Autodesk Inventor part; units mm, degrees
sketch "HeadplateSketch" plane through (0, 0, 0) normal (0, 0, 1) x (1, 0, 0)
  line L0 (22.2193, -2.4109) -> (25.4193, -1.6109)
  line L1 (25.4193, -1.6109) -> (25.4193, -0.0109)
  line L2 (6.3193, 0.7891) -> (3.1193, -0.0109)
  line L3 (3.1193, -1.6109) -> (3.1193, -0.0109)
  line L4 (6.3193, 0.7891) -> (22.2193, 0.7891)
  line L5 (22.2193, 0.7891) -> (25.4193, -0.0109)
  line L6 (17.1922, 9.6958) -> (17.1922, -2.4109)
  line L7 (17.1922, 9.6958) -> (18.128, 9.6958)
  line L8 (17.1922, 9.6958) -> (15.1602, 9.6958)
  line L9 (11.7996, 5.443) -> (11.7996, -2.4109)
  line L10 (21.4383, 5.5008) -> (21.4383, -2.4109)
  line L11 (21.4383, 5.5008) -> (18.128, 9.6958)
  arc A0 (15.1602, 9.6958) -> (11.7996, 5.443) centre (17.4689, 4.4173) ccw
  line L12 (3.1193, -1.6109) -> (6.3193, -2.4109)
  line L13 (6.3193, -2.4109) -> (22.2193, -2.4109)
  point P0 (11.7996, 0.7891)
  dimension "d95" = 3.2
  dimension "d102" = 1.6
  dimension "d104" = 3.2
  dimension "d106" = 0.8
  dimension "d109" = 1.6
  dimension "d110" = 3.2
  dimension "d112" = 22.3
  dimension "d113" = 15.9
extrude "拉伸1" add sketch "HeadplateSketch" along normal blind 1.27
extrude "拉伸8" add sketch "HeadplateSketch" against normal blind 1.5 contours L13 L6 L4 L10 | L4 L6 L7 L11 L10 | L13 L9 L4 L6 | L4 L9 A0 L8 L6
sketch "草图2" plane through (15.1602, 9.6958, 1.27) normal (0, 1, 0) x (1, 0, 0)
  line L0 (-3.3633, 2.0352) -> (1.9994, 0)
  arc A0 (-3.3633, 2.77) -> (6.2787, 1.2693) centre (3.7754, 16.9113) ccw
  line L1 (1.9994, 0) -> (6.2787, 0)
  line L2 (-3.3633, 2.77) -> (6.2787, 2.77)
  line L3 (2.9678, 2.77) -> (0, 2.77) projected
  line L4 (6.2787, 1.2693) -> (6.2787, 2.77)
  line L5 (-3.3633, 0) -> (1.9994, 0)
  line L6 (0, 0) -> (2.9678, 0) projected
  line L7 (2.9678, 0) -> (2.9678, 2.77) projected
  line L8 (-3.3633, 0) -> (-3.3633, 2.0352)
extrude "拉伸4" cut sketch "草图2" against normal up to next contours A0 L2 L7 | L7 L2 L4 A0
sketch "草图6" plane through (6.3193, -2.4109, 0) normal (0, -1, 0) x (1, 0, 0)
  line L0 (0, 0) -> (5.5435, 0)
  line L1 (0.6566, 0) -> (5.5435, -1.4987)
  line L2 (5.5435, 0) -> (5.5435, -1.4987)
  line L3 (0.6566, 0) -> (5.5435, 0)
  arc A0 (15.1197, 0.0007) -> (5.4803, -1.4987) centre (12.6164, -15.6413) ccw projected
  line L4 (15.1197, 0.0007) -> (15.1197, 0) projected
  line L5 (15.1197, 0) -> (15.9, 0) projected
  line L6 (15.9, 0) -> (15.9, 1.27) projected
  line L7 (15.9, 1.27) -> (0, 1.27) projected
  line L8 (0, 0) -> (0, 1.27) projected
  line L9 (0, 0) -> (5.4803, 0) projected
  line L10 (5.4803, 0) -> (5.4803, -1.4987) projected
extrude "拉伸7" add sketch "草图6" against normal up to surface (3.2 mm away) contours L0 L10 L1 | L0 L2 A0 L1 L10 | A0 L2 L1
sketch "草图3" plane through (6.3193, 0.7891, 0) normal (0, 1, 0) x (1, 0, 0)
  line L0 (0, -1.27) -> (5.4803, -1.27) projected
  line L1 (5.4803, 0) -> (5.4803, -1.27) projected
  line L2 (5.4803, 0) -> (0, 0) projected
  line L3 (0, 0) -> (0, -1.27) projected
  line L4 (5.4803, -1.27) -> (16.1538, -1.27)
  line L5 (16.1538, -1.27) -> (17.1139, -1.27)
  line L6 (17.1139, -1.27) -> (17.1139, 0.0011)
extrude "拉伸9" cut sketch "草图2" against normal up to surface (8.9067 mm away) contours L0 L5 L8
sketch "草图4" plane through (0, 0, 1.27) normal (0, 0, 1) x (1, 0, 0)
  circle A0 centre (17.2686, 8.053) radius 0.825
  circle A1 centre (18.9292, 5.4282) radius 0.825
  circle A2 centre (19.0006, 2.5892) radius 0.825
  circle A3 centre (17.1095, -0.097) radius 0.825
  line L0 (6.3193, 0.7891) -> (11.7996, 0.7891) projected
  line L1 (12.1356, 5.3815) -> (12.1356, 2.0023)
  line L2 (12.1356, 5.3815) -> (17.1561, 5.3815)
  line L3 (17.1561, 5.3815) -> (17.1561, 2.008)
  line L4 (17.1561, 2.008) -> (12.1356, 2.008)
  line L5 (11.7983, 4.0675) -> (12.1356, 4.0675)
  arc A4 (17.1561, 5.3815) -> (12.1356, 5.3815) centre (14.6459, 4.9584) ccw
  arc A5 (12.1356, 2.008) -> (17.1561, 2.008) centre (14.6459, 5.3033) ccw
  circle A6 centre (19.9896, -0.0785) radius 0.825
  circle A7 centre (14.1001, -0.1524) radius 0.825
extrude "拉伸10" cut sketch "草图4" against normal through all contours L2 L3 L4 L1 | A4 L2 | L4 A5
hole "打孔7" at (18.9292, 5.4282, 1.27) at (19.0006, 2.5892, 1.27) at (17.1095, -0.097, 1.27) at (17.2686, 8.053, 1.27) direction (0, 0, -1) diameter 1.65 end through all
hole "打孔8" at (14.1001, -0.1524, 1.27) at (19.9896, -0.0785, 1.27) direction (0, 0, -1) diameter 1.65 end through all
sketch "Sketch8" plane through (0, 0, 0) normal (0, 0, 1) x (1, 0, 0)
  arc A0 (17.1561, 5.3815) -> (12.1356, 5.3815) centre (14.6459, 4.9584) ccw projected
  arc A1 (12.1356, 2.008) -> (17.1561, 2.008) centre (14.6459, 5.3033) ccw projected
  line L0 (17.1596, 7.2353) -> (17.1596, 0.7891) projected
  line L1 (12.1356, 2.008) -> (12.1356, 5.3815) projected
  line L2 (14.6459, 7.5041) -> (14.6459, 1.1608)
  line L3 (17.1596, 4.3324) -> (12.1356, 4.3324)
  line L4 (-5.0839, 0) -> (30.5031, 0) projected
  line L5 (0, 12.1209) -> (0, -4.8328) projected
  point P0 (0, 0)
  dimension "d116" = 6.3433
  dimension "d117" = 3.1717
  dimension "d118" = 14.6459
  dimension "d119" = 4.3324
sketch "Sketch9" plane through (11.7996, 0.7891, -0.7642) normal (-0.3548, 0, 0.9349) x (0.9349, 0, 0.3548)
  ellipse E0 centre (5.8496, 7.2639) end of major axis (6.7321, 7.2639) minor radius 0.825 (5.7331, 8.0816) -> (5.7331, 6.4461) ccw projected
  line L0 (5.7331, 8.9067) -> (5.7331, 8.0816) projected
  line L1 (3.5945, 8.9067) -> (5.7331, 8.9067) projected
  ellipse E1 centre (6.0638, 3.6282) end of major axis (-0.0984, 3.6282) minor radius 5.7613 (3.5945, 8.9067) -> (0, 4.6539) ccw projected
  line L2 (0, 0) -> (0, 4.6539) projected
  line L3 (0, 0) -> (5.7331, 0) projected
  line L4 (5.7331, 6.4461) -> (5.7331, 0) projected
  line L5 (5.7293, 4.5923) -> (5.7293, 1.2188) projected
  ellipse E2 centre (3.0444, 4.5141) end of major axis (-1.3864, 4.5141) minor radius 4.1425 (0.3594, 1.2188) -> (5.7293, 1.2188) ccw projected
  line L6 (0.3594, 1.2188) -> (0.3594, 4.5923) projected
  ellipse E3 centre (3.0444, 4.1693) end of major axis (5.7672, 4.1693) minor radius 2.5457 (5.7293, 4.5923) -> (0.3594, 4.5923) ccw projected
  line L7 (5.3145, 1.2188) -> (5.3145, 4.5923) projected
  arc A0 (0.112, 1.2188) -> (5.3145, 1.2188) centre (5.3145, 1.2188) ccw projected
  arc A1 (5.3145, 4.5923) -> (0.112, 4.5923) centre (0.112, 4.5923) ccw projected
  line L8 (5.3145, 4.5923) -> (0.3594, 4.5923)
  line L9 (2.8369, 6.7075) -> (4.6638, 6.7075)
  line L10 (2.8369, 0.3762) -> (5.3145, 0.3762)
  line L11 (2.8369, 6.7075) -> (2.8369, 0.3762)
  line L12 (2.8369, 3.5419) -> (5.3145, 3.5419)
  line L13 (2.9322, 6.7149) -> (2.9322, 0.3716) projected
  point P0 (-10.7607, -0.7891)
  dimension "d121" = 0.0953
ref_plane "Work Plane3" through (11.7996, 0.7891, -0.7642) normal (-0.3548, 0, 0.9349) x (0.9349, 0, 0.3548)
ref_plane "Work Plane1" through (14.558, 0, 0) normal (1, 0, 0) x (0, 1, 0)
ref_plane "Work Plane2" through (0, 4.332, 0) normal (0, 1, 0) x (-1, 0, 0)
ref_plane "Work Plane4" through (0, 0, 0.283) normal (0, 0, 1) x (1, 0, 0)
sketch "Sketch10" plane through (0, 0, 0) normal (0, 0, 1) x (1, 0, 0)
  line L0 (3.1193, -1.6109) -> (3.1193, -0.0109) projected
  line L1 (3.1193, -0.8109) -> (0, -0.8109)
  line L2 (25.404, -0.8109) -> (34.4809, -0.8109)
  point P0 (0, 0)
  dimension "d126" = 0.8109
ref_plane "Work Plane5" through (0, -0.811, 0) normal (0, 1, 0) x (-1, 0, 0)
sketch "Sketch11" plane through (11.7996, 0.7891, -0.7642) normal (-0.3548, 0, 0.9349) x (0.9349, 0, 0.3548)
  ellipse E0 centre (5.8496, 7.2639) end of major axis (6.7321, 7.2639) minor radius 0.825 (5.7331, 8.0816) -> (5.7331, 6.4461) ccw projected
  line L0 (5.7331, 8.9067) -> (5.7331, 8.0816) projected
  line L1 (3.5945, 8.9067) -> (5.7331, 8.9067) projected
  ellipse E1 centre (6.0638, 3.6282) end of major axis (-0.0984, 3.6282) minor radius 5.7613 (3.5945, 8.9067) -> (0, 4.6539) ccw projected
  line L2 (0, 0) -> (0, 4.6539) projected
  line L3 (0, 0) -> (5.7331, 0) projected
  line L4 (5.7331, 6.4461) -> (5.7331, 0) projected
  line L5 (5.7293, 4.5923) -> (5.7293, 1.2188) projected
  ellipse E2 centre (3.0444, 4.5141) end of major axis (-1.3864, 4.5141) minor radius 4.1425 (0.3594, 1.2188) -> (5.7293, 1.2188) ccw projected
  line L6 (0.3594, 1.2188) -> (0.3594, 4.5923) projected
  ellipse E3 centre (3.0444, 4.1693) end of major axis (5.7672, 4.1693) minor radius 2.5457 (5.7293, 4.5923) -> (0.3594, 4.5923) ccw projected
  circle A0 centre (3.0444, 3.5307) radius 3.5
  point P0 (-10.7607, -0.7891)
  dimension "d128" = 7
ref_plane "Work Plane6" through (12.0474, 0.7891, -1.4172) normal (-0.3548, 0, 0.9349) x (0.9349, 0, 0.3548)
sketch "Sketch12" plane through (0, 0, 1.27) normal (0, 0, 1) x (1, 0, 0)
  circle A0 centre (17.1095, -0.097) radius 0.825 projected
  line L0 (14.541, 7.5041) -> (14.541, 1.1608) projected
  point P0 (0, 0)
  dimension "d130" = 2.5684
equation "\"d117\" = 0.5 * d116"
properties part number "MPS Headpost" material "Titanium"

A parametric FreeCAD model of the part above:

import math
import FreeCAD as App
import Part
import Sketcher

V = App.Vector
Q = App.Units.Quantity

doc = App.newDocument("Part")
body = doc.addObject("PartDesign::Body", "Body")

# Sketch on XY plane
sketch1 = doc.addObject("Sketcher::SketchObject", "Sketch")
body.addObject(sketch1)
sketch1.AttachmentSupport = (doc.XY_Plane, [""])
sketch1.MapMode = "FlatFace"
sketch1.addGeometry(Part.LineSegment(V(22.2193, -2.4109, 0), V(25.4193, -1.6109, 0)), False)
sketch1.addGeometry(Part.LineSegment(V(25.4193, -1.6109, 0), V(25.4193, -0.0109, 0)), False)
sketch1.addGeometry(Part.LineSegment(V(25.4193, -0.0109, 0), V(22.2193, 0.7891, 0)), False)
sketch1.addGeometry(Part.LineSegment(V(22.2193, 0.7891, 0), V(21.4383, 0.7891, 0)), False)
sketch1.addGeometry(Part.LineSegment(V(21.4383, 0.7891, 0), V(21.4383, 5.5008, 0)), False)
sketch1.addGeometry(Part.LineSegment(V(21.4383, 5.5008, 0), V(18.128, 9.6958, 0)), False)
sketch1.addGeometry(Part.LineSegment(V(18.128, 9.6958, 0), V(15.1602, 9.6958, 0)), False)
sketch1.addGeometry(Part.ArcOfCircle(Part.Circle(V(17.4689, 4.4173, 0), V(0, 0, 1), 5.761307), math.radians(113.623512), math.radians(169.744876)), False)
sketch1.addGeometry(Part.LineSegment(V(11.7996, 5.443, 0), V(11.7996, 0.7891, 0)), False)
sketch1.addGeometry(Part.LineSegment(V(11.7996, 0.7891, 0), V(6.3193, 0.7891, 0)), False)
sketch1.addGeometry(Part.LineSegment(V(6.3193, 0.7891, 0), V(3.1193, -0.0109, 0)), False)
sketch1.addGeometry(Part.LineSegment(V(3.1193, -0.0109, 0), V(3.1193, -1.6109, 0)), False)
sketch1.addGeometry(Part.LineSegment(V(3.1193, -1.6109, 0), V(6.3193, -2.4109, 0)), False)
sketch1.addGeometry(Part.LineSegment(V(6.3193, -2.4109, 0), V(22.2193, -2.4109, 0)), False)
sketch1.addConstraint(Sketcher.Constraint("Coincident", 0, 2, 1, 1))
sketch1.addConstraint(Sketcher.Constraint("Coincident", 1, 2, 2, 1))
sketch1.addConstraint(Sketcher.Constraint("Coincident", 2, 2, 3, 1))
sketch1.addConstraint(Sketcher.Constraint("Coincident", 3, 2, 4, 1))
sketch1.addConstraint(Sketcher.Constraint("Coincident", 4, 2, 5, 1))
sketch1.addConstraint(Sketcher.Constraint("Coincident", 5, 2, 6, 1))
sketch1.addConstraint(Sketcher.Constraint("Coincident", 6, 2, 7, 1))
sketch1.addConstraint(Sketcher.Constraint("Coincident", 7, 2, 8, 1))
sketch1.addConstraint(Sketcher.Constraint("Coincident", 8, 2, 9, 1))
sketch1.addConstraint(Sketcher.Constraint("Coincident", 9, 2, 10, 1))
sketch1.addConstraint(Sketcher.Constraint("Coincident", 10, 2, 11, 1))
sketch1.addConstraint(Sketcher.Constraint("Coincident", 11, 2, 12, 1))
sketch1.addConstraint(Sketcher.Constraint("Coincident", 12, 2, 13, 1))
sketch1.addConstraint(Sketcher.Constraint("Coincident", 13, 2, 0, 1))
sketch1.addConstraint(Sketcher.Constraint("Vertical", 1))
sketch1.addConstraint(Sketcher.Constraint("Horizontal", 3))
sketch1.addConstraint(Sketcher.Constraint("Vertical", 4))
sketch1.addConstraint(Sketcher.Constraint("Horizontal", 6))
sketch1.addConstraint(Sketcher.Constraint("Vertical", 8))
sketch1.addConstraint(Sketcher.Constraint("Horizontal", 9))
sketch1.addConstraint(Sketcher.Constraint("Vertical", 11))
sketch1.addConstraint(Sketcher.Constraint("Horizontal", 13))
sketch1.addConstraint(Sketcher.Constraint("Parallel", 0, 10))
sketch1.addConstraint(Sketcher.Constraint("Parallel", 2, 12))
sketch1.addConstraint(Sketcher.Constraint("Horizontal", 3, 2, 8, 2))
sketch1.addConstraint(Sketcher.Constraint("Horizontal", 1, 2, 10, 2))
sketch1.addConstraint(Sketcher.Constraint("Horizontal", 0, 2, 11, 2))
sketch1.addConstraint(Sketcher.Constraint("Vertical", 9, 2, 12, 2))
sketch1.addConstraint(Sketcher.Constraint("Vertical", 2, 2, 13, 2))
sketch1.addConstraint(Sketcher.Constraint("DistanceX", 13, 1, 13, 2, Q("15.9 mm")))
sketch1.addConstraint(Sketcher.Constraint("DistanceY", 1, 1, 1, 2, Q("1.6 mm")))
sketch1.addConstraint(Sketcher.Constraint("DistanceX", 2, 2, 1, 2, Q("3.2 mm")))
sketch1.addConstraint(Sketcher.Constraint("DistanceY", 1, 2, 2, 2, Q("0.8 mm")))
sketch1.addConstraint(Sketcher.Constraint("Radius", 7, Q("5.7613 mm")))
sketch1.addConstraint(Sketcher.Constraint("DistanceX", 3, 2, 3, 1, Q("0.781 mm")))
sketch1.addConstraint(Sketcher.Constraint("DistanceY", 8, 2, 8, 1, Q("4.654 mm")))
sketch1.addConstraint(Sketcher.Constraint("DistanceX", 6, 2, 6, 1, Q("2.9678 mm")))
sketch1.addConstraint(Sketcher.Constraint("DistanceX", 9, 2, 9, 1, Q("5.4803 mm")))
sketch1.addConstraint(Sketcher.Constraint("DistanceY", 4, 1, 4, 2, Q("4.7117 mm")))
sketch1.addConstraint(Sketcher.Constraint("DistanceX", -1, 1, 7, 3, Q("17.469 mm")))
sketch1.addConstraint(Sketcher.Constraint("DistanceY", 0, 2, -1, 1, Q("1.611 mm")))
sketch1.addConstraint(Sketcher.Constraint("DistanceX", -1, 1, 5, 2, Q("18.128 mm")))
sketch1.addConstraint(Sketcher.Constraint("DistanceY", 4, 2, 5, 2, Q("4.195 mm")))
pad1 = doc.addObject("PartDesign::Pad", "Pad")
body.addObject(pad1)
pad1.Profile = sketch1
pad1.Length = 1.27

# Sketch on XY plane
sketch2 = doc.addObject("Sketcher::SketchObject", "Sketch001")
body.addObject(sketch2)
sketch2.AttachmentSupport = (doc.XY_Plane, [""])
sketch2.MapMode = "FlatFace"
sketch2.addGeometry(Part.LineSegment(V(21.4383, -2.4109, 0), V(21.4383, 5.5008, 0)), False)
sketch2.addGeometry(Part.LineSegment(V(21.4383, 5.5008, 0), V(18.128, 9.6958, 0)), False)
sketch2.addGeometry(Part.LineSegment(V(18.128, 9.6958, 0), V(15.1602, 9.6958, 0)), False)
sketch2.addGeometry(Part.ArcOfCircle(Part.Circle(V(17.4689, 4.4173, 0), V(0, 0, 1), 5.761307), math.radians(113.623512), math.radians(169.744876)), False)
sketch2.addGeometry(Part.LineSegment(V(11.7996, 5.443, 0), V(11.7996, -2.4109, 0)), False)
sketch2.addGeometry(Part.LineSegment(V(11.7996, -2.4109, 0), V(21.4383, -2.4109, 0)), False)
sketch2.addConstraint(Sketcher.Constraint("Coincident", 0, 2, 1, 1))
sketch2.addConstraint(Sketcher.Constraint("Coincident", 1, 2, 2, 1))
sketch2.addConstraint(Sketcher.Constraint("Coincident", 2, 2, 3, 1))
sketch2.addConstraint(Sketcher.Constraint("Coincident", 3, 2, 4, 1))
sketch2.addConstraint(Sketcher.Constraint("Coincident", 4, 2, 5, 1))
sketch2.addConstraint(Sketcher.Constraint("Coincident", 5, 2, 0, 1))
sketch2.addConstraint(Sketcher.Constraint("Vertical", 0))
sketch2.addConstraint(Sketcher.Constraint("Horizontal", 2))
sketch2.addConstraint(Sketcher.Constraint("Vertical", 4))
sketch2.addConstraint(Sketcher.Constraint("Horizontal", 5))
sketch2.addConstraint(Sketcher.Constraint("Radius", 3, Q("5.7613 mm")))
sketch2.addConstraint(Sketcher.Constraint("DistanceY", 4, 2, 4, 1, Q("7.854 mm")))
sketch2.addConstraint(Sketcher.Constraint("DistanceX", 2, 2, 2, 1, Q("2.9678 mm")))
sketch2.addConstraint(Sketcher.Constraint("DistanceX", 5, 1, 5, 2, Q("9.6387 mm")))
sketch2.addConstraint(Sketcher.Constraint("DistanceY", 0, 1, 0, 2, Q("7.9117 mm")))
sketch2.addConstraint(Sketcher.Constraint("DistanceX", -1, 1, 3, 3, Q("17.469 mm")))
sketch2.addConstraint(Sketcher.Constraint("DistanceX", -1, 1, 1, 2, Q("18.128 mm")))
sketch2.addConstraint(Sketcher.Constraint("DistanceY", -1, 1, 3, 2, Q("5.443 mm")))
sketch2.addConstraint(Sketcher.Constraint("DistanceY", 0, 2, 1, 2, Q("4.195 mm")))
pad2 = doc.addObject("PartDesign::Pad", "Pad001")
body.addObject(pad2)
pad2.Profile = sketch2
pad2.Length = 1.5
pad2.Reversed = True

# Sketch on XZ plane
sketch3 = doc.addObject("Sketcher::SketchObject", "Sketch002")
body.addObject(sketch3)
sketch3.AttachmentSupport = (doc.XZ_Plane, [""])
sketch3.MapMode = "FlatFace"
sketch3.AttachmentOffset = App.Placement(V(0, 0, -9.6958), App.Rotation())
sketch3.addGeometry(Part.ArcOfCircle(Part.Circle(V(18.9356, -15.6413, 0), V(0, 0, 1), 15.841004), math.radians(80.907652), math.radians(116.785199)), False)
sketch3.addGeometry(Part.LineSegment(V(21.4389, 0.0007, 0), V(21.4389, -1.5, 0)), False)
sketch3.addGeometry(Part.LineSegment(V(21.4389, -1.5, 0), V(11.7969, -1.5, 0)), False)
sketch3.addConstraint(Sketcher.Constraint("Coincident", 0, 1, 1, 1))
sketch3.addConstraint(Sketcher.Constraint("Coincident", 1, 2, 2, 1))
sketch3.addConstraint(Sketcher.Constraint("Coincident", 2, 2, 0, 2))
sketch3.addConstraint(Sketcher.Constraint("Vertical", 1))
sketch3.addConstraint(Sketcher.Constraint("Horizontal", 2))
sketch3.addConstraint(Sketcher.Constraint("Radius", 0, Q("15.841 mm")))
sketch3.addConstraint(Sketcher.Constraint("DistanceY", 1, 2, -1, 1, Q("1.5 mm")))
sketch3.addConstraint(Sketcher.Constraint("DistanceX", 2, 2, 2, 1, Q("9.642 mm")))
sketch3.addConstraint(Sketcher.Constraint("DistanceY", 1, 2, 1, 1, Q("1.5007 mm")))
sketch3.addConstraint(Sketcher.Constraint("DistanceX", -1, 1, 0, 1, Q("21.439 mm")))
pocket1 = doc.addObject("PartDesign::Pocket", "Pocket")
body.addObject(pocket1)
pocket1.Profile = sketch3
pocket1.Type = "UpToFirst"
pocket1.Reversed = True

# Sketch on XZ plane
sketch4 = doc.addObject("Sketcher::SketchObject", "Sketch003")
body.addObject(sketch4)
sketch4.AttachmentSupport = (doc.XZ_Plane, [""])
sketch4.MapMode = "FlatFace"
sketch4.AttachmentOffset = App.Placement(V(0, 0, 2.4109), App.Rotation())
sketch4.addGeometry(Part.LineSegment(V(6.9759, 0, 0), V(11.8628, -1.4987, 0)), False)
sketch4.addGeometry(Part.LineSegment(V(11.8628, -1.4987, 0), V(11.8628, 0, 0)), False)
sketch4.addGeometry(Part.LineSegment(V(11.8628, 0, 0), V(6.9759, 0, 0)), False)
sketch4.addConstraint(Sketcher.Constraint("Coincident", 0, 2, 1, 1))
sketch4.addConstraint(Sketcher.Constraint("Coincident", 1, 2, 2, 1))
sketch4.addConstraint(Sketcher.Constraint("Coincident", 2, 2, 0, 1))
sketch4.addConstraint(Sketcher.Constraint("Vertical", 1))
sketch4.addConstraint(Sketcher.Constraint("Horizontal", 2))
sketch4.addConstraint(Sketcher.Constraint("PointOnObject", 1, 2, -1))
sketch4.addConstraint(Sketcher.Constraint("Angle", 0, Q("-17.0496 deg")))
sketch4.addConstraint(Sketcher.Constraint("DistanceX", 2, 2, 2, 1, Q("4.887 mm")))
sketch4.addConstraint(Sketcher.Constraint("DistanceX", -1, 1, 2, 2, Q("6.976 mm")))
pad3 = doc.addObject("PartDesign::Pad", "Pad002")
body.addObject(pad3)
pad3.Profile = sketch4
pad3.Length = 3.2
pad3.Reversed = True

# Sketch on XZ plane
sketch5 = doc.addObject("Sketcher::SketchObject", "Sketch004")
body.addObject(sketch5)
sketch5.AttachmentSupport = (doc.XZ_Plane, [""])
sketch5.MapMode = "FlatFace"
sketch5.AttachmentOffset = App.Placement(V(0, 0, -9.6958), App.Rotation())
sketch5.addGeometry(Part.LineSegment(V(17.1596, 1.27, 0), V(11.7969, -0.7652, 0)), False)
sketch5.addGeometry(Part.LineSegment(V(11.7969, -0.7652, 0), V(11.7969, 1.27, 0)), False)
sketch5.addGeometry(Part.LineSegment(V(11.7969, 1.27, 0), V(17.1596, 1.27, 0)), False)
sketch5.addConstraint(Sketcher.Constraint("Coincident", 0, 2, 1, 1))
sketch5.addConstraint(Sketcher.Constraint("Coincident", 1, 2, 2, 1))
sketch5.addConstraint(Sketcher.Constraint("Coincident", 2, 2, 0, 1))
sketch5.addConstraint(Sketcher.Constraint("Vertical", 1))
sketch5.addConstraint(Sketcher.Constraint("Horizontal", 2))
sketch5.addConstraint(Sketcher.Constraint("DistanceY", -1, 1, 1, 2, Q("1.27 mm")))
sketch5.addConstraint(Sketcher.Constraint("Distance", 0, Q("5.736 mm")))
sketch5.addConstraint(Sketcher.Constraint("DistanceX", 2, 1, 2, 2, Q("5.3627 mm")))
sketch5.addConstraint(Sketcher.Constraint("DistanceX", -1, 1, 0, 2, Q("11.797 mm")))
pocket2 = doc.addObject("PartDesign::Pocket", "Pocket001")
body.addObject(pocket2)
pocket2.Profile = sketch5
pocket2.Length = 8.9067
pocket2.Reversed = True

# Sketch on XY plane
sketch6 = doc.addObject("Sketcher::SketchObject", "Sketch005")
body.addObject(sketch6)
sketch6.AttachmentSupport = (doc.XY_Plane, [""])
sketch6.MapMode = "FlatFace"
sketch6.AttachmentOffset = App.Placement(V(0, 0, 1.27), App.Rotation())
sketch6.addGeometry(Part.LineSegment(V(17.1561, 2.008, 0), V(17.1561, 5.3815, 0)), False)
sketch6.addGeometry(Part.ArcOfCircle(Part.Circle(V(14.6459, 4.9584, 0), V(0, 0, 1), 2.545608), math.radians(9.567409), math.radians(170.432965)), False)
sketch6.addGeometry(Part.LineSegment(V(12.1356, 5.3815, 0), V(12.1356, 2.008, 0)), False)
sketch6.addGeometry(Part.ArcOfCircle(Part.Circle(V(14.6459, 5.3033, 0), V(0, 0, 1), 4.142536), math.radians(-127.299495), math.radians(-52.701605)), False)
sketch6.addConstraint(Sketcher.Constraint("Coincident", 0, 2, 1, 1))
sketch6.addConstraint(Sketcher.Constraint("Coincident", 1, 2, 2, 1))
sketch6.addConstraint(Sketcher.Constraint("Coincident", 2, 2, 3, 1))
sketch6.addConstraint(Sketcher.Constraint("Coincident", 3, 2, 0, 1))
sketch6.addConstraint(Sketcher.Constraint("Vertical", 0))
sketch6.addConstraint(Sketcher.Constraint("Vertical", 2))
sketch6.addConstraint(Sketcher.Constraint("Horizontal", 0, 2, 1, 2))
sketch6.addConstraint(Sketcher.Constraint("Horizontal", 2, 2, 3, 2))
sketch6.addConstraint(Sketcher.Constraint("Radius", 1, Q("2.5456 mm")))
sketch6.addConstraint(Sketcher.Constraint("Radius", 3, Q("4.1425 mm")))
sketch6.addConstraint(Sketcher.Constraint("DistanceY", 0, 1, 0, 2, Q("3.3735 mm")))
sketch6.addConstraint(Sketcher.Constraint("DistanceX", -1, 1, 1, 3, Q("14.646 mm")))
sketch6.addConstraint(Sketcher.Constraint("DistanceX", -1, 1, 0, 2, Q("17.156 mm")))
sketch6.addConstraint(Sketcher.Constraint("DistanceY", -1, 1, 2, 2, Q("2.008 mm")))
pocket3 = doc.addObject("PartDesign::Pocket", "Pocket002")
body.addObject(pocket3)
pocket3.Profile = sketch6
pocket3.Type = "ThroughAll"

# Sketch on XY plane
sketch7 = doc.addObject("Sketcher::SketchObject", "Sketch006")
body.addObject(sketch7)
sketch7.AttachmentSupport = (doc.XY_Plane, [""])
sketch7.MapMode = "FlatFace"
sketch7.AttachmentOffset = App.Placement(V(0, 0, 1.27), App.Rotation())
sketch7.addGeometry(Part.Circle(V(18.9292, 5.4282, 0), V(0, 0, 1), 0.825), False)
sketch7.addGeometry(Part.Circle(V(19.0006, 2.5892, 0), V(0, 0, 1), 0.825), False)
sketch7.addGeometry(Part.Circle(V(17.1095, -0.097, 0), V(0, 0, 1), 0.825), False)
sketch7.addGeometry(Part.Circle(V(17.2686, 8.053, 0), V(0, 0, 1), 0.825), False)
sketch7.addConstraint(Sketcher.Constraint("Equal", 0, 1))
sketch7.addConstraint(Sketcher.Constraint("Equal", 1, 2))
sketch7.addConstraint(Sketcher.Constraint("Equal", 2, 3))
sketch7.addConstraint(Sketcher.Constraint("Diameter", 0, Q("1.65 mm")))
sketch7.addConstraint(Sketcher.Constraint("DistanceY", 2, 3, 3, 3, Q("8.15 mm")))
sketch7.addConstraint(Sketcher.Constraint("DistanceY", 2, 3, -1, 1, Q("0.097 mm")))
sketch7.addConstraint(Sketcher.Constraint("DistanceY", 1, 3, 0, 3, Q("2.839 mm")))
sketch7.addConstraint(Sketcher.Constraint("DistanceX", 2, 3, 1, 3, Q("1.891 mm")))
sketch7.addConstraint(Sketcher.Constraint("DistanceX", 3, 3, 1, 3, Q("1.732 mm")))
sketch7.addConstraint(Sketcher.Constraint("DistanceX", -1, 1, 0, 3, Q("18.9292 mm")))
sketch7.addConstraint(Sketcher.Constraint("DistanceY", -1, 1, 0, 3, Q("5.4282 mm")))
sketch7.addConstraint(Sketcher.Constraint("DistanceX", -1, 1, 1, 3, Q("19.0006 mm")))
doc.recompute()
hole = doc.addObject("PartDesign::Hole", "Hole")
body.addObject(hole)
hole.Profile = sketch7
hole.ThreadType = "None"
hole.Diameter = 1.65
hole.DepthType = "ThroughAll"

# Sketch on XY plane
sketch8 = doc.addObject("Sketcher::SketchObject", "Sketch007")
body.addObject(sketch8)
sketch8.AttachmentSupport = (doc.XY_Plane, [""])
sketch8.MapMode = "FlatFace"
sketch8.AttachmentOffset = App.Placement(V(0, 0, 1.27), App.Rotation())
sketch8.addGeometry(Part.Circle(V(14.1001, -0.1524, 0), V(0, 0, 1), 0.825), False)
sketch8.addGeometry(Part.Circle(V(19.9896, -0.0785, 0), V(0, 0, 1), 0.825), False)
sketch8.addConstraint(Sketcher.Constraint("Equal", 0, 1))
sketch8.addConstraint(Sketcher.Constraint("Diameter", 0, Q("1.65 mm")))
sketch8.addConstraint(Sketcher.Constraint("DistanceX", -1, 1, 0, 3, Q("14.1 mm")))
sketch8.addConstraint(Sketcher.Constraint("DistanceY", 0, 3, 1, 3, Q("0.074 mm")))
sketch8.addConstraint(Sketcher.Constraint("DistanceY", 0, 3, -1, 1, Q("0.1524 mm")))
sketch8.addConstraint(Sketcher.Constraint("DistanceX", -1, 1, 1, 3, Q("19.9896 mm")))
doc.recompute()
hole2 = doc.addObject("PartDesign::Hole", "Hole001")
body.addObject(hole2)
hole2.Profile = sketch8
hole2.ThreadType = "None"
hole2.Diameter = 1.65
hole2.DepthType = "ThroughAll"

doc.recompute()
